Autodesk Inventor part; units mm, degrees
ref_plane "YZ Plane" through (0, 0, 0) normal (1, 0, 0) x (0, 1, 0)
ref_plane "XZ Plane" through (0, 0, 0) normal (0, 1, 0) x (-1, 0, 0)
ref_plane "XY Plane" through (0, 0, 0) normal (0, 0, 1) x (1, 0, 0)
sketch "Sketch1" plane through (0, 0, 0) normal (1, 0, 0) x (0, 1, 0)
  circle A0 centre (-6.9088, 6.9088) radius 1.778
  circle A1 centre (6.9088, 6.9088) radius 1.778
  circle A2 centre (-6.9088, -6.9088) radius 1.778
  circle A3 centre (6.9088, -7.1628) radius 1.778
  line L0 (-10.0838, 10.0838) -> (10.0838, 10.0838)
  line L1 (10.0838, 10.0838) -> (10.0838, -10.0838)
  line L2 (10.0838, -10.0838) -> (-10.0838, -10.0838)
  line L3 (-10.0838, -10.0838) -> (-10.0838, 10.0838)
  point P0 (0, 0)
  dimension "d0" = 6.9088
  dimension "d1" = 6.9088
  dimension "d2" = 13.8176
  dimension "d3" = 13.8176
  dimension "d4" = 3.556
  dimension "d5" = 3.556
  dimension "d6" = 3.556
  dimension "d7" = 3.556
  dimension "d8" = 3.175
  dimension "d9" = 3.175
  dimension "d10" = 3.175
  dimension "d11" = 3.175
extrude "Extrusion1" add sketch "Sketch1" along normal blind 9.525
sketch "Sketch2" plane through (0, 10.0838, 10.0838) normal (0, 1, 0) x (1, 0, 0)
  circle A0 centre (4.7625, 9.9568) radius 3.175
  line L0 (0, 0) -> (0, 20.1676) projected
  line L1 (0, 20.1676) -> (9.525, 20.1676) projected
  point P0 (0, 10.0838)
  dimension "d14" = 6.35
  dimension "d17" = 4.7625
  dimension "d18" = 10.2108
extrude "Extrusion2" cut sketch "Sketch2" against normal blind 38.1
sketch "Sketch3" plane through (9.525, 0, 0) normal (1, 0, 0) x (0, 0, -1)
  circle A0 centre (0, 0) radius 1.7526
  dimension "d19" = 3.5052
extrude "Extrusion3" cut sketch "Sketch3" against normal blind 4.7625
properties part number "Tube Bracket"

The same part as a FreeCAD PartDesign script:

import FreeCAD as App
import Part
import Sketcher
Q = App.Units.Quantity


def add_polygon(sketch, points):
    """Adds a closed chain of lines whose ends are joined by coincident constraints."""
    first, n = sketch.GeometryCount, len(points)
    for a, b in zip(points, points[1:] + points[:1]):
        sketch.addGeometry(Part.LineSegment(App.Vector(*a, 0), App.Vector(*b, 0)), False)
    for i in range(n):
        sketch.addConstraint(Sketcher.Constraint("Coincident", first + i, 2, first + (i + 1) % n, 1))

doc = App.newDocument("Part")
params = doc.addObject("Spreadsheet::Sheet", "Params")
for row, (alias, value) in enumerate([
    ("sketch1_diameter", "0.14 in"),
    ("pad1_length", "0.375 in"),
    ("sketch2_diameter", "0.25 in"),
    ("pocket1_length", "1.5 in"),
    ("sketch3_diameter", "0.138 in"),
    ("pocket2_length", "0.1875 in"),
], start=1):
    params.set(f"A{row}", alias)
    params.set(f"B{row}", "=" + value)
    params.setAlias(f"B{row}", alias)

body = doc.addObject("PartDesign::Body", "Body")

# Sketch on YZ plane
sketch1 = body.newObject("Sketcher::SketchObject", "Sketch")
sketch1.AttachmentSupport = (doc.getObject("YZ_Plane"), [""])
sketch1.MapMode = "FlatFace"
add_polygon(sketch1, [(10.0838, 10.0838), (-10.0838, 10.0838), (-10.0838, -10.0838), (10.0838, -10.0838)])  # lines 0-3
sketch1.addGeometry(Part.Circle(App.Vector(-6.9088, -6.9088, 0), App.Vector(0, 0, 1), 1.778), False)  # 4
sketch1.addGeometry(Part.Circle(App.Vector(6.9088, -7.1628, 0), App.Vector(0, 0, 1), 1.778), False)  # 5
sketch1.addGeometry(Part.Circle(App.Vector(-6.9088, 6.9088, 0), App.Vector(0, 0, 1), 1.778), False)  # 6
sketch1.addGeometry(Part.Circle(App.Vector(6.9088, 6.9088, 0), App.Vector(0, 0, 1), 1.778), False)  # 7
sketch1.addConstraint([
    Sketcher.Constraint("Horizontal", 0),
    Sketcher.Constraint("Vertical", 1),
    Sketcher.Constraint("Horizontal", 2),
    Sketcher.Constraint("Vertical", 3),
    Sketcher.Constraint("Equal", 4, 5),
    Sketcher.Constraint("Equal", 5, 6),
    Sketcher.Constraint("Equal", 6, 7),
    Sketcher.Constraint("Symmetric", 4, 3, 7, 3, -1, 1),
    Sketcher.Constraint("Symmetric", 0, 2, 2, 2, -1, 1),
    Sketcher.Constraint("Symmetric", 6, 3, 7, 3, -2),
    Sketcher.Constraint("Vertical", 5, 3, 7, 3),
    Sketcher.Constraint("Equal", 2, 1),
    Sketcher.Constraint("Diameter", 4, Q("0.14 in")),
    Sketcher.Constraint("DistanceX", 4, 3, -1, 1, Q("0.272 in")),
    Sketcher.Constraint("DistanceY", 4, 3, -1, 1, Q("0.272 in")),
    Sketcher.Constraint("DistanceX", 0, 2, 6, 3, Q("0.125 in")),
    Sketcher.Constraint("DistanceY", 5, 3, 4, 3, Q("0.01 in")),
])
sketch1.setExpression("Constraints[16]", "Params.sketch1_diameter")
pad1 = body.newObject("PartDesign::Pad", "Pad")
pad1.Profile = sketch1
pad1.setExpression("Length", "Params.pad1_length")

# Sketch on XZ plane
sketch2 = body.newObject("Sketcher::SketchObject", "Sketch001")
sketch2.AttachmentSupport = (doc.getObject("XZ_Plane"), [""])
sketch2.MapMode = "FlatFace"
sketch2.AttachmentOffset = App.Placement(App.Vector(0, 0, -0.397 * 25.4), App.Rotation())
sketch2.addGeometry(Part.Circle(App.Vector(4.7625, 0.127, 0), App.Vector(0, 0, 1), 3.175), False)
sketch2.addConstraint([
    Sketcher.Constraint("Diameter", 0, Q("0.25 in")),
    Sketcher.Constraint("DistanceX", -1, 1, 0, 3, Q("0.1875 in")),
    Sketcher.Constraint("DistanceY", -1, 1, 0, 3, Q("0.005 in")),
])
sketch2.setExpression("Constraints[0]", "Params.sketch2_diameter")
pocket1 = body.newObject("PartDesign::Pocket", "Pocket")
pocket1.Profile = sketch2
pocket1.setExpression("Length", "Params.pocket1_length")
pocket1.Reversed = True

# Sketch on YZ plane
sketch3 = body.newObject("Sketcher::SketchObject", "Sketch002")
sketch3.AttachmentSupport = (doc.getObject("YZ_Plane"), [""])
sketch3.MapMode = "FlatFace"
sketch3.AttachmentOffset = App.Placement(App.Vector(0, 0, 0.375 * 25.4), App.Rotation())
sketch3.addGeometry(Part.Circle(App.Vector(0, 0, 0), App.Vector(0, 0, 1), 1.7526), False)
sketch3.addConstraint([
    Sketcher.Constraint("Coincident", 0, 3, -1, 1),
    Sketcher.Constraint("Diameter", 0, Q("0.138 in")),
])
sketch3.setExpression("Constraints[1]", "Params.sketch3_diameter")
pocket2 = body.newObject("PartDesign::Pocket", "Pocket001")
pocket2.Profile = sketch3
pocket2.setExpression("Length", "Params.pocket2_length")

doc.recompute()
